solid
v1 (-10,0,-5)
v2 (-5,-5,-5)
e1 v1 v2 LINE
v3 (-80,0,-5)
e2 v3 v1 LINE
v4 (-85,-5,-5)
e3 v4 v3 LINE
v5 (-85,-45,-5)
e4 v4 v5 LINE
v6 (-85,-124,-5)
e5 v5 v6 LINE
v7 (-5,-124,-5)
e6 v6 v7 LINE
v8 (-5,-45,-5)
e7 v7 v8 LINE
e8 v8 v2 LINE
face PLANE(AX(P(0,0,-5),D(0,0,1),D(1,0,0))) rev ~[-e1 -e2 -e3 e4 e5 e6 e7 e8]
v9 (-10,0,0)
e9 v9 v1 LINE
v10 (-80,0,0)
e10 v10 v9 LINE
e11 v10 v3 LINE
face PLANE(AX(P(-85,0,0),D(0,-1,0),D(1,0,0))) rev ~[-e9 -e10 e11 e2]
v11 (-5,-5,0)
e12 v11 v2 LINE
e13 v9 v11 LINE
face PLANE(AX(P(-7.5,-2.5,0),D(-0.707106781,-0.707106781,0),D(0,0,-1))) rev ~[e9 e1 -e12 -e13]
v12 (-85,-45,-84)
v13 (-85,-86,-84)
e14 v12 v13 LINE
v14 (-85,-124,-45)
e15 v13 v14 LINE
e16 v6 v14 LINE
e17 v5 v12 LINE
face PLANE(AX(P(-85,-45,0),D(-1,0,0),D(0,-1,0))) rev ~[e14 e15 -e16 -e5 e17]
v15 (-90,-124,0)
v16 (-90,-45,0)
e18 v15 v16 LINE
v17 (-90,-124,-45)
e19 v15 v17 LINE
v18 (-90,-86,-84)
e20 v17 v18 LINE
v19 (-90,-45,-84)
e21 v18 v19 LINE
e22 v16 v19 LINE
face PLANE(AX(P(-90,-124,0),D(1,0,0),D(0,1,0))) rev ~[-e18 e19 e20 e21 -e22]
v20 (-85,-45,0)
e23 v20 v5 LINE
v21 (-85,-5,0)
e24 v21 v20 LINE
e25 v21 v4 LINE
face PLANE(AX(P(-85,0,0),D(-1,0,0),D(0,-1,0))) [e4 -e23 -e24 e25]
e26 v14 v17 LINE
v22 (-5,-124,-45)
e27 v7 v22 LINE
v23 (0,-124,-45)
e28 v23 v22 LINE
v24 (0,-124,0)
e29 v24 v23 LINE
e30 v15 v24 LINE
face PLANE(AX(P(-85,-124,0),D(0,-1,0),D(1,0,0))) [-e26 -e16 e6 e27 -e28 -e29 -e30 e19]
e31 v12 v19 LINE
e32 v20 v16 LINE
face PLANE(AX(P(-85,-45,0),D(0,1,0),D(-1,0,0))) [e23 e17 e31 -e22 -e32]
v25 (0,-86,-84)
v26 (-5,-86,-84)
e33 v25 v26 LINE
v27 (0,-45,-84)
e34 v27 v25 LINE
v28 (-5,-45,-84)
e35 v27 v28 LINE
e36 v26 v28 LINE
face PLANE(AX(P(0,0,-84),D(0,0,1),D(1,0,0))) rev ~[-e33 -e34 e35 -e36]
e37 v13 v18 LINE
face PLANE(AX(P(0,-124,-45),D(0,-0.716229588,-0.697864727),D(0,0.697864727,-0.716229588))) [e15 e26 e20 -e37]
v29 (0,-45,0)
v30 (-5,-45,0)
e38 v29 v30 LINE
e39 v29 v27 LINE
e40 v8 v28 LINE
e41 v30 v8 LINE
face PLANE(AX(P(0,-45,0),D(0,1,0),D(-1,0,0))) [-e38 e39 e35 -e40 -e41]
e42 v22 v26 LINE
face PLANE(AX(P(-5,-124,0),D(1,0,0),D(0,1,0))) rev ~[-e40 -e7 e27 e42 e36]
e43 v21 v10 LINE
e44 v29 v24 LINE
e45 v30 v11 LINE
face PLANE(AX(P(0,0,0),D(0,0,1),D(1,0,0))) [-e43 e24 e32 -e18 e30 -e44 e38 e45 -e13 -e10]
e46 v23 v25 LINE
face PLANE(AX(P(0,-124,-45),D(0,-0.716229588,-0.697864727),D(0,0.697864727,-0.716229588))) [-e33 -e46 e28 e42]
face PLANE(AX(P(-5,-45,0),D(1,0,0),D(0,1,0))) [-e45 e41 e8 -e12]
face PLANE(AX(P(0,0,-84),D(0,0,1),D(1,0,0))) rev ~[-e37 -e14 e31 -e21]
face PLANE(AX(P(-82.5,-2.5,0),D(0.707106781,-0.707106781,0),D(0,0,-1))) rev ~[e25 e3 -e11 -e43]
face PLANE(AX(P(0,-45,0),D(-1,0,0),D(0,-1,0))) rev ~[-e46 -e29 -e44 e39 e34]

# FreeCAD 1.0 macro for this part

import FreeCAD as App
import Part
import Sketcher

V = App.Vector


def edges_at(feature, points):
    """Names of the edges that pass closest to the given points."""
    edges = feature.Shape.Edges
    near = lambda p: min(range(len(edges)), key=lambda i: edges[i].distToShape(Part.Vertex(*p))[0])
    return sorted({f"Edge{near(p) + 1}" for p in points})


def add_polygon(sketch, points):
    """Adds a closed chain of lines whose ends are joined by coincident constraints."""
    first, n = sketch.GeometryCount, len(points)
    for a, b in zip(points, points[1:] + points[:1]):
        sketch.addGeometry(Part.LineSegment(App.Vector(*a, 0), App.Vector(*b, 0)), False)
    for i in range(n):
        sketch.addConstraint(Sketcher.Constraint("Coincident", first + i, 2, first + (i + 1) % n, 1))

doc = App.newDocument("Part")
body = doc.addObject("PartDesign::Body", "Body")

# Sketch on XY plane
sketch1 = doc.addObject("Sketcher::SketchObject", "Sketch")
body.addObject(sketch1)
sketch1.AttachmentSupport = (doc.XY_Plane, [""])
sketch1.MapMode = "FlatFace"
add_polygon(sketch1, [(-5, -124), (-5, 0), (-85, 0), (-85, -124)])  # lines 0-3
sketch1.addConstraint(Sketcher.Constraint("Vertical", 0))
sketch1.addConstraint(Sketcher.Constraint("Horizontal", 1))
sketch1.addConstraint(Sketcher.Constraint("Vertical", 2))
sketch1.addConstraint(Sketcher.Constraint("Horizontal", 3))
sketch1.addConstraint(Sketcher.Constraint("PointOnObject", 0, 2, -1))
sketch1.addConstraint(Sketcher.Constraint("DistanceY", 0, 1, 0, 2, 124.0))
sketch1.addConstraint(Sketcher.Constraint("DistanceX", 1, 2, 1, 1, 80.0))
sketch1.addConstraint(Sketcher.Constraint("DistanceX", 0, 2, -1, 1, 5.0))
pad1 = doc.addObject("PartDesign::Pad", "Pad")
body.addObject(pad1)
pad1.Profile = sketch1
pad1.Length = 5
pad1.Reversed = True
doc.recompute()

chamfer = doc.addObject("PartDesign::Chamfer", "Chamfer")
body.addObject(chamfer)
chamfer.Base = (pad1, edges_at(pad1, [(-5, 0, -2.5), (-85, 0, -2.5)]))
chamfer.Size = 5

# Sketch on XY plane
sketch2 = doc.addObject("Sketcher::SketchObject", "Sketch001")
body.addObject(sketch2)
sketch2.AttachmentSupport = (doc.XY_Plane, [""])
sketch2.MapMode = "FlatFace"
add_polygon(sketch2, [(-5, -45), (-5, -124), (0, -124), (0, -45)])  # lines 0-3
add_polygon(sketch2, [(-85, -124), (-85, -45), (-90, -45), (-90, -124)])  # lines 4-7
sketch2.addConstraint(Sketcher.Constraint("Vertical", 0))
sketch2.addConstraint(Sketcher.Constraint("Horizontal", 1))
sketch2.addConstraint(Sketcher.Constraint("Vertical", 2))
sketch2.addConstraint(Sketcher.Constraint("Horizontal", 3))
sketch2.addConstraint(Sketcher.Constraint("Vertical", 4))
sketch2.addConstraint(Sketcher.Constraint("Horizontal", 5))
sketch2.addConstraint(Sketcher.Constraint("Vertical", 6))
sketch2.addConstraint(Sketcher.Constraint("Horizontal", 7))
sketch2.addConstraint(Sketcher.Constraint("PointOnObject", 1, 2, -2))
sketch2.addConstraint(Sketcher.Constraint("Horizontal", 3, 2, 4, 2))
sketch2.addConstraint(Sketcher.Constraint("Horizontal", 1, 2, 6, 2))
sketch2.addConstraint(Sketcher.Constraint("Equal", 3, 5))
sketch2.addConstraint(Sketcher.Constraint("DistanceX", 1, 1, 1, 2, 5.0))
sketch2.addConstraint(Sketcher.Constraint("DistanceY", 0, 2, 0, 1, 79.0))
sketch2.addConstraint(Sketcher.Constraint("DistanceY", 0, 2, -1, 1, 124.0))
sketch2.addConstraint(Sketcher.Constraint("DistanceX", 4, 2, -1, 1, 85.0))
pad2 = doc.addObject("PartDesign::Pad", "Pad001")
body.addObject(pad2)
pad2.Profile = sketch2
pad2.Length = 84
pad2.Reversed = True

# Sketch on YZ plane
sketch3 = doc.addObject("Sketcher::SketchObject", "Sketch002")
body.addObject(sketch3)
sketch3.AttachmentSupport = (doc.YZ_Plane, [""])
sketch3.MapMode = "FlatFace"
add_polygon(sketch3, [(-124, -45), (-124, -84), (-86, -84)])  # lines 0-2
sketch3.addConstraint(Sketcher.Constraint("Vertical", 0))
sketch3.addConstraint(Sketcher.Constraint("Horizontal", 1))
sketch3.addConstraint(Sketcher.Constraint("DistanceX", 1, 1, 1, 2, 38.0))
sketch3.addConstraint(Sketcher.Constraint("DistanceY", 2, 2, -1, 1, 45.0))
sketch3.addConstraint(Sketcher.Constraint("DistanceY", 0, 2, 0, 1, 39.0))
sketch3.addConstraint(Sketcher.Constraint("DistanceX", 0, 2, -1, 1, 124.0))
pocket1 = doc.addObject("PartDesign::Pocket", "Pocket")
body.addObject(pocket1)
pocket1.Profile = sketch3
pocket1.Type = "ThroughAll"

doc.recompute()
